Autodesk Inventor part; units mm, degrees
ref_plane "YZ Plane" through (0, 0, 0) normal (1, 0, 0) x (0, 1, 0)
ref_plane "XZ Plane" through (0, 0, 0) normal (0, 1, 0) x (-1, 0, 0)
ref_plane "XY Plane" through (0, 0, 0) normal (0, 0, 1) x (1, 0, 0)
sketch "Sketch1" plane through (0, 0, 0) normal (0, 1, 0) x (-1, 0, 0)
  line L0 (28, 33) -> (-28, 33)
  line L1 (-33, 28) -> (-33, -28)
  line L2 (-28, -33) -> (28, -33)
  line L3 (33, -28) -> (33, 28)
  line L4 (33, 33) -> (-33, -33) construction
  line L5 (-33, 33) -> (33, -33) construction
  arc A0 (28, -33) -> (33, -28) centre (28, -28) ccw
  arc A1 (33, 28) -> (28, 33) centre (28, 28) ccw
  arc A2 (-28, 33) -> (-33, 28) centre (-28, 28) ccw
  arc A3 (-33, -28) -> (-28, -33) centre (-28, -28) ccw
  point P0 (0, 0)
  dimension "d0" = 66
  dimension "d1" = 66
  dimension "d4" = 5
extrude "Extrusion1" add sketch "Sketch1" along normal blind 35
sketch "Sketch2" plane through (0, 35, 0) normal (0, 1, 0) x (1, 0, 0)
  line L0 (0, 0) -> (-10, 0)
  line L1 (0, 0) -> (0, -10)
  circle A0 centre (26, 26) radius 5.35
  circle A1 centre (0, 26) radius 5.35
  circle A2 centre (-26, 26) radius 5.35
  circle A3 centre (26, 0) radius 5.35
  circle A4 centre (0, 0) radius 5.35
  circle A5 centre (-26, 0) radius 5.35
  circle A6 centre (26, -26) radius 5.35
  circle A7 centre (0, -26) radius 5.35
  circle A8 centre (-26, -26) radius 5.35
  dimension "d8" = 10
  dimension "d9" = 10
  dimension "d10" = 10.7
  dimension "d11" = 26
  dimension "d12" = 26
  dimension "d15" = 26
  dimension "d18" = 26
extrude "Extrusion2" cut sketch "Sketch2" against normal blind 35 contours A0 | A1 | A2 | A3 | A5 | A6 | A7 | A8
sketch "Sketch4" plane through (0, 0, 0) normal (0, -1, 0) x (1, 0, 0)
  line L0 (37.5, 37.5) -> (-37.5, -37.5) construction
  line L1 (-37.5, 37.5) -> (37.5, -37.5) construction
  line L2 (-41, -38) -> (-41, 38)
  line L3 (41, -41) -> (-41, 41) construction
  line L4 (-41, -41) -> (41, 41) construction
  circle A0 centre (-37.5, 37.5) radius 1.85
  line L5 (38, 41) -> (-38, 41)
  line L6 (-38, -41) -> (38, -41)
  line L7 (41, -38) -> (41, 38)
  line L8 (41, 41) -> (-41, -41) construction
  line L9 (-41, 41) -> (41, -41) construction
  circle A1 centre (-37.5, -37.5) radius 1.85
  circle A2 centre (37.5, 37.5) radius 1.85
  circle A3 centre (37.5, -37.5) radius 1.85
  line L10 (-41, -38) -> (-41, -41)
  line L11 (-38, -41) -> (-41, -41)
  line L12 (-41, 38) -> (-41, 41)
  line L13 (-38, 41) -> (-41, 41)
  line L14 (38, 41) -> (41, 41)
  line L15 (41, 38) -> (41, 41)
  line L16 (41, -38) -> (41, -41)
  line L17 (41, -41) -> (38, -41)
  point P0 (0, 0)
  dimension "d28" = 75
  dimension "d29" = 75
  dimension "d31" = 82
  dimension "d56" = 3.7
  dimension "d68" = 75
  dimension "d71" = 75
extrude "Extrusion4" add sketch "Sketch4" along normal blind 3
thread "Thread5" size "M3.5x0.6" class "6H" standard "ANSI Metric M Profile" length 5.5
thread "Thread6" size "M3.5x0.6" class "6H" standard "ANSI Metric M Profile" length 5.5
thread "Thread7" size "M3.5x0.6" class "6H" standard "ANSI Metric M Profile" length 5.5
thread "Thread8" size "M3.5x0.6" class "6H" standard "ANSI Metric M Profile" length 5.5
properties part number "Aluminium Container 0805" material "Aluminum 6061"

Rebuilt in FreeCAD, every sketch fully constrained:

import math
import FreeCAD as App
import Part
import Sketcher
from FreeCAD import Vector
Q = App.Units.Quantity


def add_polygon(sketch, points):
    """Adds a closed chain of lines whose ends are joined by coincident constraints."""
    first, n = sketch.GeometryCount, len(points)
    for a, b in zip(points, points[1:] + points[:1]):
        sketch.addGeometry(Part.LineSegment(App.Vector(*a, 0), App.Vector(*b, 0)), False)
    for i in range(n):
        sketch.addConstraint(Sketcher.Constraint("Coincident", first + i, 2, first + (i + 1) % n, 1))

doc = App.newDocument("Part")
body = doc.addObject("PartDesign::Body", "Body")

# Sketch on XZ plane
sketch1 = body.newObject("Sketcher::SketchObject", "Sketch")
sketch1.AttachmentSupport = (doc.getObject("XZ_Plane"), [""])
sketch1.MapMode = "FlatFace"
sketch1.addGeometry([
    Part.ArcOfCircle(Part.Circle(Vector(-28, 28, 0), Vector(0, 0, 1), 5), math.radians(90), math.radians(180)),  # 0
    Part.LineSegment(Vector(-28, 33, 0), Vector(28, 33, 0)),  # 1
    Part.ArcOfCircle(Part.Circle(Vector(28, 28, 0), Vector(0, 0, 1), 5), math.radians(0), math.radians(90)),  # 2
    Part.LineSegment(Vector(33, 28, 0), Vector(33, -28, 0)),  # 3
    Part.ArcOfCircle(Part.Circle(Vector(28, -28, 0), Vector(0, 0, 1), 5), math.radians(-90), math.radians(0)),  # 4
    Part.LineSegment(Vector(28, -33, 0), Vector(-28, -33, 0)),  # 5
    Part.ArcOfCircle(Part.Circle(Vector(-28, -28, 0), Vector(0, 0, 1), 5), math.radians(180), math.radians(270)),  # 6
    Part.LineSegment(Vector(-33, -28, 0), Vector(-33, 28, 0)),  # 7
], False)
sketch1.addConstraint([
    Sketcher.Constraint("Tangent", 0, 1, 1, 1),
    Sketcher.Constraint("Tangent", 1, 2, 2, 2),
    Sketcher.Constraint("Tangent", 2, 1, 3, 1),
    Sketcher.Constraint("Tangent", 3, 2, 4, 2),
    Sketcher.Constraint("Tangent", 4, 1, 5, 1),
    Sketcher.Constraint("Tangent", 5, 2, 6, 2),
    Sketcher.Constraint("Tangent", 6, 1, 7, 1),
    Sketcher.Constraint("Tangent", 7, 2, 0, 2),
    Sketcher.Constraint("Horizontal", 1),
    Sketcher.Constraint("Vertical", 3),
    Sketcher.Constraint("Horizontal", 5),
    Sketcher.Constraint("Vertical", 7),
    Sketcher.Constraint("Equal", 0, 2),
    Sketcher.Constraint("Equal", 2, 4),
    Sketcher.Constraint("Equal", 4, 6),
    Sketcher.Constraint("Symmetric", 0, 3, 4, 3, -1, 1),
    Sketcher.Constraint("Equal", 5, 3),
    Sketcher.Constraint("Radius", 0, Q("5 mm")),
    Sketcher.Constraint("DistanceX", 1, 1, 1, 2, Q("56 mm")),
])
pad1 = body.newObject("PartDesign::Pad", "Pad")
pad1.Profile = sketch1
pad1.Length = 35
pad1.Reversed = True

# Sketch on XZ plane
sketch2 = body.newObject("Sketcher::SketchObject", "Sketch001")
sketch2.AttachmentSupport = (doc.getObject("XZ_Plane"), [""])
sketch2.MapMode = "FlatFace"
sketch2.AttachmentOffset = App.Placement(Vector(0, 0, -35), App.Rotation())
sketch2.addGeometry([
    Part.Circle(Vector(26, -26, 0), Vector(0, 0, 1), 5),  # 0
    Part.Circle(Vector(0, -26, 0), Vector(0, 0, 1), 5),  # 1
    Part.Circle(Vector(-26, -26, 0), Vector(0, 0, 1), 5),  # 2
    Part.Circle(Vector(26, 0, 0), Vector(0, 0, 1), 5),  # 3
    Part.Circle(Vector(-26, 0, 0), Vector(0, 0, 1), 5),  # 4
    Part.Circle(Vector(26, 26, 0), Vector(0, 0, 1), 5),  # 5
    Part.Circle(Vector(0, 26, 0), Vector(0, 0, 1), 5),  # 6
    Part.Circle(Vector(-26, 26, 0), Vector(0, 0, 1), 5),  # 7
], False)
sketch2.addConstraint([
    Sketcher.Constraint("Equal", 0, 1),
    Sketcher.Constraint("Equal", 1, 2),
    Sketcher.Constraint("Equal", 2, 3),
    Sketcher.Constraint("Equal", 3, 4),
    Sketcher.Constraint("Equal", 4, 5),
    Sketcher.Constraint("Equal", 5, 6),
    Sketcher.Constraint("Equal", 6, 7),
    Sketcher.Constraint("Symmetric", 3, 3, 4, 3, -1, 1),
    Sketcher.Constraint("Symmetric", 2, 3, 5, 3, -1, 1),
    Sketcher.Constraint("Symmetric", 1, 3, 6, 3, -1, 1),
    Sketcher.Constraint("Symmetric", 0, 3, 7, 3, -1, 1),
    Sketcher.Constraint("Symmetric", 0, 3, 2, 3, -2),
    Sketcher.Constraint("PointOnObject", 1, 3, -2),
    Sketcher.Constraint("PointOnObject", 3, 3, -1),
    Sketcher.Constraint("Horizontal", 0, 3, 1, 3),
    Sketcher.Constraint("Vertical", 0, 3, 3, 3),
    Sketcher.Constraint("Diameter", 0, Q("10.7 mm")),
    Sketcher.Constraint("DistanceX", -1, 1, 0, 3, Q("26 mm")),
    Sketcher.Constraint("DistanceY", 0, 3, -1, 1, Q("26 mm")),
])
pocket1 = body.newObject("PartDesign::Pocket", "Pocket")
pocket1.Profile = sketch2
pocket1.Length = 35
pocket1.Reversed = True

# Sketch on XZ plane
sketch3 = body.newObject("Sketcher::SketchObject", "Sketch002")
sketch3.AttachmentSupport = (doc.getObject("XZ_Plane"), [""])
sketch3.MapMode = "FlatFace"
add_polygon(sketch3, [(-41, 41), (-41, -41), (41, -41), (41, 41)])  # lines 0-3
sketch3.addGeometry(Part.Circle(Vector(-37.5, -37.5, 0), Vector(0, 0, 1), 1.9), False)  # 4
sketch3.addGeometry(Part.Circle(Vector(37.5, -37.5, 0), Vector(0, 0, 1), 1.9), False)  # 5
sketch3.addGeometry(Part.Circle(Vector(-37.5, 37.5, 0), Vector(0, 0, 1), 1.9), False)  # 6
sketch3.addGeometry(Part.Circle(Vector(37.5, 37.5, 0), Vector(0, 0, 1), 1.9), False)  # 7
sketch3.addConstraint([
    Sketcher.Constraint("Vertical", 0),
    Sketcher.Constraint("Horizontal", 1),
    Sketcher.Constraint("Vertical", 2),
    Sketcher.Constraint("Horizontal", 3),
    Sketcher.Constraint("Equal", 4, 5),
    Sketcher.Constraint("Equal", 5, 6),
    Sketcher.Constraint("Equal", 6, 7),
    Sketcher.Constraint("Symmetric", 5, 3, 6, 3, -1, 1),
    Sketcher.Constraint("Symmetric", 4, 3, 7, 3, -1, 1),
    Sketcher.Constraint("Symmetric", 0, 2, 2, 2, -1, 1),
    Sketcher.Constraint("Symmetric", 4, 3, 5, 3, -2),
    Sketcher.Constraint("Equal", 3, 0),
    Sketcher.Constraint("Diameter", 4, Q("3.7 mm")),
    Sketcher.Constraint("DistanceX", 1, 1, 1, 2, Q("82 mm")),
    Sketcher.Constraint("DistanceX", 4, 3, 5, 3, Q("75 mm")),
    Sketcher.Constraint("DistanceY", 4, 3, 6, 3, Q("75 mm")),
])
pad2 = body.newObject("PartDesign::Pad", "Pad001")
pad2.Profile = sketch3
pad2.Length = 3

doc.recompute()
